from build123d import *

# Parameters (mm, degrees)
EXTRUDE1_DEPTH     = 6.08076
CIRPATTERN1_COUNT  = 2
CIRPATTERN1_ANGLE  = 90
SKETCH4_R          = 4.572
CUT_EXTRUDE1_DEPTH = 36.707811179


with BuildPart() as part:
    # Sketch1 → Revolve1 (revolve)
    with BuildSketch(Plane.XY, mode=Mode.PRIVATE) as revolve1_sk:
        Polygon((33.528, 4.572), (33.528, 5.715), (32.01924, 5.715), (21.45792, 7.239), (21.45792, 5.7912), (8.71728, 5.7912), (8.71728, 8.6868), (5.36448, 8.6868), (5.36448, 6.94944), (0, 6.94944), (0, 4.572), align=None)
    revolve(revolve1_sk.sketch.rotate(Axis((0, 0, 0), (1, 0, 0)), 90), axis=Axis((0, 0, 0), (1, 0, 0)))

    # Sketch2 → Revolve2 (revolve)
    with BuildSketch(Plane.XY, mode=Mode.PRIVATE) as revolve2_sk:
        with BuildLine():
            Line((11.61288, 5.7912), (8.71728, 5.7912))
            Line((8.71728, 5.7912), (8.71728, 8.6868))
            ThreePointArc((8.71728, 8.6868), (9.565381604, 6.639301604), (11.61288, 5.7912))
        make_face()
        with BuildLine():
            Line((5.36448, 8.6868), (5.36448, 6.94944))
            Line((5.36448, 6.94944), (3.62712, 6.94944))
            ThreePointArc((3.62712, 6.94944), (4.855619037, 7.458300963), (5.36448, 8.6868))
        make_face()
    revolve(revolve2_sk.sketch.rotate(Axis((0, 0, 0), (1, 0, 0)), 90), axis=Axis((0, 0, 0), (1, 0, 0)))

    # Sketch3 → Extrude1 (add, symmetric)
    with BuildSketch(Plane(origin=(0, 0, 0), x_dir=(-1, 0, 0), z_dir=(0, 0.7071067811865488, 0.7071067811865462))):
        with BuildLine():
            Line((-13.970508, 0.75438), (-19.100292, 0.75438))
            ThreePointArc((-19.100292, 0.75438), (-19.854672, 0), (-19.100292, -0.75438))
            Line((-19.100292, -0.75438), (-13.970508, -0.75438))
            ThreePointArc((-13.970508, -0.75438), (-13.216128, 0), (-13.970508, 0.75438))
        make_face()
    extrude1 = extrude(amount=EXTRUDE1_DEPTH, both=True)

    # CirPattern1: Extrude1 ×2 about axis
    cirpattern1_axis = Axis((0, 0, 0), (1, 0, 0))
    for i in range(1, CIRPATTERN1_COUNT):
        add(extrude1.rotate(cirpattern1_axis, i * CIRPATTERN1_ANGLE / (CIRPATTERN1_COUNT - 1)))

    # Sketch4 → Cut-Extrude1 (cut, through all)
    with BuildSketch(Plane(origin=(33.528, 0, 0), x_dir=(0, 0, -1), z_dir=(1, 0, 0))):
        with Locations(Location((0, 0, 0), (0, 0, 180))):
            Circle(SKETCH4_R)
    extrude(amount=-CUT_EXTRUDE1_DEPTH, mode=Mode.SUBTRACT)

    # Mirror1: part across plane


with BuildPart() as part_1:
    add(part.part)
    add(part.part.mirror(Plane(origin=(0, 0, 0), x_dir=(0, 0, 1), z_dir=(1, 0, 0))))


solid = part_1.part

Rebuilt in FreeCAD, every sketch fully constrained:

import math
import FreeCAD as App
import Part
import Sketcher
Q = App.Units.Quantity


def add_polygon(sketch, points):
    """Adds a closed chain of lines whose ends are joined by coincident constraints."""
    first, n = sketch.GeometryCount, len(points)
    for a, b in zip(points, points[1:] + points[:1]):
        sketch.addGeometry(Part.LineSegment(App.Vector(*a, 0), App.Vector(*b, 0)), False)
    for i in range(n):
        sketch.addConstraint(Sketcher.Constraint("Coincident", first + i, 2, first + (i + 1) % n, 1))

doc = App.newDocument("Part")
params = doc.addObject("Spreadsheet::Sheet", "Params")
for row, (alias, value) in enumerate([
    ("sketch1_width", "1.32 in"),
    ("sketch1_width2", "0.132 in"),
    ("sketch1_height", "0.045 in"),
    ("sketch1_height2", "0.057 in"),
    ("sketch1_height3", "0.114 in"),
    ("revolution_angle", "360 deg"),
    ("sketch2_radius", "0.114 in"),
    ("revolution2_angle", "360 deg"),
    ("pad1_length", "0.4788 in"),
    ("sketch4_diameter", "0.36 in"),
], start=1):
    params.set(f"A{row}", alias)
    params.set(f"B{row}", "=" + value)
    params.setAlias(f"B{row}", alias)

body = doc.addObject("PartDesign::Body", "Body")

# Sketch on XY plane
sketch1 = doc.addObject("Sketcher::SketchObject", "Sketch")
body.addObject(sketch1)
sketch1.AttachmentSupport = (doc.XY_Plane, [""])
sketch1.MapMode = "FlatFace"
add_polygon(sketch1, [(33.5, 4.6), (33.5, 5.7), (32, 5.7), (21.5, 7.2), (21.5, 5.8), (8.7, 5.8), (8.7, 8.7), (5.4, 8.7), (5.4, 6.9), (0, 6.9), (0, 4.6)])  # lines 0-10
sketch1.addConstraint([
    Sketcher.Constraint("Vertical", 0),
    Sketcher.Constraint("Horizontal", 1),
    Sketcher.Constraint("Vertical", 3),
    Sketcher.Constraint("Horizontal", 4),
    Sketcher.Constraint("Vertical", 5),
    Sketcher.Constraint("Horizontal", 6),
    Sketcher.Constraint("Vertical", 7),
    Sketcher.Constraint("Horizontal", 8),
    Sketcher.Constraint("Vertical", 9),
    Sketcher.Constraint("Horizontal", 10),
    Sketcher.Constraint("PointOnObject", 8, 2, -2),
    Sketcher.Constraint("DistanceX", 10, 1, 10, 2, Q("1.32 in")),
    Sketcher.Constraint("DistanceX", 6, 2, 6, 1, Q("0.132 in")),
    Sketcher.Constraint("DistanceY", 0, 1, 0, 2, Q("0.045 in")),
    Sketcher.Constraint("DistanceY", 3, 2, 3, 1, Q("0.057 in")),
    Sketcher.Constraint("DistanceY", 5, 1, 5, 2, Q("0.114 in")),
    Sketcher.Constraint("DistanceY", -1, 1, 9, 2, Q("0.18 in")),
    Sketcher.Constraint("DistanceY", 1, 2, 2, 2, Q("0.06 in")),
    Sketcher.Constraint("DistanceX", 1, 2, 1, 1, Q("0.0594 in")),
    Sketcher.Constraint("DistanceX", 4, 2, 4, 1, Q("0.5016 in")),
    Sketcher.Constraint("DistanceX", 8, 2, 8, 1, Q("0.2112 in")),
    Sketcher.Constraint("DistanceY", 7, 2, 7, 1, Q("0.0684 in")),
])
sketch1.setExpression("Constraints[22]", "Params.sketch1_width")
sketch1.setExpression("Constraints[23]", "Params.sketch1_width2")
sketch1.setExpression("Constraints[24]", "Params.sketch1_height")
sketch1.setExpression("Constraints[25]", "Params.sketch1_height2")
sketch1.setExpression("Constraints[26]", "Params.sketch1_height3")
revolution = doc.addObject("PartDesign::Revolution", "Revolution")
body.addObject(revolution)
revolution.Profile = sketch1
revolution.ReferenceAxis = (sketch1, ["H_Axis"])
revolution.setExpression("Angle", "Params.revolution_angle")

# Sketch on XY plane
sketch2 = doc.addObject("Sketcher::SketchObject", "Sketch001")
body.addObject(sketch2)
sketch2.AttachmentSupport = (doc.XY_Plane, [""])
sketch2.MapMode = "FlatFace"
sketch2.addGeometry([
    Part.LineSegment(App.Vector(8.7, 5.8, 0), App.Vector(11.6, 5.8, 0)),  # 0
    Part.ArcOfCircle(Part.Circle(App.Vector(11.6, 8.7, 0), App.Vector(0, 0, 1), 2.9), math.radians(180), math.radians(270)),  # 1
    Part.LineSegment(App.Vector(8.7, 8.7, 0), App.Vector(8.7, 5.8, 0)),  # 2
    Part.LineSegment(App.Vector(5.4, 6.9, 0), App.Vector(5.4, 8.7, 0)),  # 3
    Part.ArcOfCircle(Part.Circle(App.Vector(3.6, 8.7, 0), App.Vector(0, 0, 1), 1.7), math.radians(-90), math.radians(0)),  # 4
    Part.LineSegment(App.Vector(3.6, 6.9, 0), App.Vector(5.4, 6.9, 0)),  # 5
], False)
sketch2.addConstraint([
    Sketcher.Constraint("Tangent", 0, 2, 1, 2),
    Sketcher.Constraint("Tangent", 1, 1, 2, 1),
    Sketcher.Constraint("Coincident", 2, 2, 0, 1),
    Sketcher.Constraint("Tangent", 3, 2, 4, 2),
    Sketcher.Constraint("Tangent", 4, 1, 5, 1),
    Sketcher.Constraint("Coincident", 5, 2, 3, 1),
    Sketcher.Constraint("Horizontal", 0),
    Sketcher.Constraint("Vertical", 2),
    Sketcher.Constraint("Vertical", 3),
    Sketcher.Constraint("Horizontal", 5),
    Sketcher.Constraint("Horizontal", 1, 3, 4, 3),
    Sketcher.Constraint("Radius", 1, Q("0.114 in")),
    Sketcher.Constraint("Radius", 4, Q("0.0684 in")),
    Sketcher.Constraint("DistanceY", -1, 1, 1, 3, Q("0.342 in")),
    Sketcher.Constraint("DistanceX", 3, 2, 1, 1, Q("0.132 in")),
    Sketcher.Constraint("DistanceX", -1, 1, 1, 3, Q("0.4572 in")),
])
sketch2.setExpression("Constraints[11]", "Params.sketch2_radius")
revolution2 = doc.addObject("PartDesign::Revolution", "Revolution001")
body.addObject(revolution2)
revolution2.Profile = sketch2
revolution2.ReferenceAxis = (sketch2, ["H_Axis"])
revolution2.setExpression("Angle", "Params.revolution2_angle")

# Sketch on an angled plane
sketch3 = doc.addObject("Sketcher::SketchObject", "Sketch002")
body.addObject(sketch3)
sketch3.Placement = App.Placement(App.Vector(0, 0, 0), App.Rotation(App.Vector(-1, 0, 0), App.Vector(0, -0.707106781, 0.707106781), App.Vector(0, 0.707106781, 0.707106781), "ZXY"))
sketch3.addGeometry([
    Part.LineSegment(App.Vector(-14, 0.8, 0), App.Vector(-19.1, 0.8, 0)),
    Part.ArcOfCircle(Part.Circle(App.Vector(-19.1, 0, 0), App.Vector(0, 0, 1), 0.8), math.radians(90), math.radians(270)),
    Part.LineSegment(App.Vector(-19.1, -0.8, 0), App.Vector(-14, -0.8, 0)),
    Part.ArcOfCircle(Part.Circle(App.Vector(-14, 0, 0), App.Vector(0, 0, 1), 0.8), math.radians(-90), math.radians(90)),
], False)
sketch3.addConstraint([
    Sketcher.Constraint("Tangent", 0, 2, 1, 1),
    Sketcher.Constraint("Tangent", 1, 2, 2, 1),
    Sketcher.Constraint("Tangent", 2, 2, 3, 1),
    Sketcher.Constraint("Tangent", 3, 2, 0, 1),
    Sketcher.Constraint("Horizontal", 0),
    Sketcher.Constraint("Horizontal", 2),
    Sketcher.Constraint("PointOnObject", 1, 3, -1),
    Sketcher.Constraint("Radius", 1, Q("0.0297 in")),
    Sketcher.Constraint("DistanceX", 0, 2, 0, 1, 5.129784),
    Sketcher.Constraint("DistanceX", 1, 3, -1, 1, 19.100292),
])
pad1 = doc.addObject("PartDesign::Pad", "Pad")
body.addObject(pad1)
pad1.Profile = sketch3
pad1.setExpression("Length", "Params.pad1_length")
pad1.Midplane = True
doc.recompute()

polarpattern = doc.addObject("PartDesign::PolarPattern", "PolarPattern")
body.addObject(polarpattern)
polarpattern.Originals = [pad1]
polarpattern.Axis = (doc.X_Axis, [""])
polarpattern.Angle = 90
polarpattern.Occurrences = 2
body.Tip = polarpattern

# Sketch on YZ plane
sketch4 = doc.addObject("Sketcher::SketchObject", "Sketch003")
body.addObject(sketch4)
sketch4.AttachmentSupport = (doc.YZ_Plane, [""])
sketch4.MapMode = "FlatFace"
sketch4.AttachmentOffset = App.Placement(App.Vector(0, 0, 1.32 * 25.4), App.Rotation())
sketch4.addGeometry(Part.Circle(App.Vector(0, 0, 0), App.Vector(0, 0, 1), 4.6), False)
sketch4.addConstraint([
    Sketcher.Constraint("Coincident", 0, 3, -1, 1),
    Sketcher.Constraint("Diameter", 0, Q("0.36 in")),
])
sketch4.setExpression("Constraints[1]", "Params.sketch4_diameter")
pocket1 = doc.addObject("PartDesign::Pocket", "Pocket")
body.addObject(pocket1)
pocket1.Profile = sketch4
pocket1.Type = "ThroughAll"
body2 = doc.addObject("PartDesign::Body", "Body001")
doc.recompute()

body2.BaseFeature = body
doc.recompute()

mirroring = doc.addObject("Part::Mirroring", "Mirroring")
mirroring.Source = body
mirroring.Base = App.Vector(0, 0, 0)
mirroring.Normal = App.Vector(1, 0, 0)
body3 = doc.addObject("PartDesign::Body", "Body002")
body3.BaseFeature = mirroring
boolean = doc.addObject("PartDesign::Boolean", "Boolean")
body2.addObject(boolean)
boolean.Type = "Fuse"
boolean.addObjects([body3])
doc.recompute()
mirroring.Visibility = False

doc.recompute()
